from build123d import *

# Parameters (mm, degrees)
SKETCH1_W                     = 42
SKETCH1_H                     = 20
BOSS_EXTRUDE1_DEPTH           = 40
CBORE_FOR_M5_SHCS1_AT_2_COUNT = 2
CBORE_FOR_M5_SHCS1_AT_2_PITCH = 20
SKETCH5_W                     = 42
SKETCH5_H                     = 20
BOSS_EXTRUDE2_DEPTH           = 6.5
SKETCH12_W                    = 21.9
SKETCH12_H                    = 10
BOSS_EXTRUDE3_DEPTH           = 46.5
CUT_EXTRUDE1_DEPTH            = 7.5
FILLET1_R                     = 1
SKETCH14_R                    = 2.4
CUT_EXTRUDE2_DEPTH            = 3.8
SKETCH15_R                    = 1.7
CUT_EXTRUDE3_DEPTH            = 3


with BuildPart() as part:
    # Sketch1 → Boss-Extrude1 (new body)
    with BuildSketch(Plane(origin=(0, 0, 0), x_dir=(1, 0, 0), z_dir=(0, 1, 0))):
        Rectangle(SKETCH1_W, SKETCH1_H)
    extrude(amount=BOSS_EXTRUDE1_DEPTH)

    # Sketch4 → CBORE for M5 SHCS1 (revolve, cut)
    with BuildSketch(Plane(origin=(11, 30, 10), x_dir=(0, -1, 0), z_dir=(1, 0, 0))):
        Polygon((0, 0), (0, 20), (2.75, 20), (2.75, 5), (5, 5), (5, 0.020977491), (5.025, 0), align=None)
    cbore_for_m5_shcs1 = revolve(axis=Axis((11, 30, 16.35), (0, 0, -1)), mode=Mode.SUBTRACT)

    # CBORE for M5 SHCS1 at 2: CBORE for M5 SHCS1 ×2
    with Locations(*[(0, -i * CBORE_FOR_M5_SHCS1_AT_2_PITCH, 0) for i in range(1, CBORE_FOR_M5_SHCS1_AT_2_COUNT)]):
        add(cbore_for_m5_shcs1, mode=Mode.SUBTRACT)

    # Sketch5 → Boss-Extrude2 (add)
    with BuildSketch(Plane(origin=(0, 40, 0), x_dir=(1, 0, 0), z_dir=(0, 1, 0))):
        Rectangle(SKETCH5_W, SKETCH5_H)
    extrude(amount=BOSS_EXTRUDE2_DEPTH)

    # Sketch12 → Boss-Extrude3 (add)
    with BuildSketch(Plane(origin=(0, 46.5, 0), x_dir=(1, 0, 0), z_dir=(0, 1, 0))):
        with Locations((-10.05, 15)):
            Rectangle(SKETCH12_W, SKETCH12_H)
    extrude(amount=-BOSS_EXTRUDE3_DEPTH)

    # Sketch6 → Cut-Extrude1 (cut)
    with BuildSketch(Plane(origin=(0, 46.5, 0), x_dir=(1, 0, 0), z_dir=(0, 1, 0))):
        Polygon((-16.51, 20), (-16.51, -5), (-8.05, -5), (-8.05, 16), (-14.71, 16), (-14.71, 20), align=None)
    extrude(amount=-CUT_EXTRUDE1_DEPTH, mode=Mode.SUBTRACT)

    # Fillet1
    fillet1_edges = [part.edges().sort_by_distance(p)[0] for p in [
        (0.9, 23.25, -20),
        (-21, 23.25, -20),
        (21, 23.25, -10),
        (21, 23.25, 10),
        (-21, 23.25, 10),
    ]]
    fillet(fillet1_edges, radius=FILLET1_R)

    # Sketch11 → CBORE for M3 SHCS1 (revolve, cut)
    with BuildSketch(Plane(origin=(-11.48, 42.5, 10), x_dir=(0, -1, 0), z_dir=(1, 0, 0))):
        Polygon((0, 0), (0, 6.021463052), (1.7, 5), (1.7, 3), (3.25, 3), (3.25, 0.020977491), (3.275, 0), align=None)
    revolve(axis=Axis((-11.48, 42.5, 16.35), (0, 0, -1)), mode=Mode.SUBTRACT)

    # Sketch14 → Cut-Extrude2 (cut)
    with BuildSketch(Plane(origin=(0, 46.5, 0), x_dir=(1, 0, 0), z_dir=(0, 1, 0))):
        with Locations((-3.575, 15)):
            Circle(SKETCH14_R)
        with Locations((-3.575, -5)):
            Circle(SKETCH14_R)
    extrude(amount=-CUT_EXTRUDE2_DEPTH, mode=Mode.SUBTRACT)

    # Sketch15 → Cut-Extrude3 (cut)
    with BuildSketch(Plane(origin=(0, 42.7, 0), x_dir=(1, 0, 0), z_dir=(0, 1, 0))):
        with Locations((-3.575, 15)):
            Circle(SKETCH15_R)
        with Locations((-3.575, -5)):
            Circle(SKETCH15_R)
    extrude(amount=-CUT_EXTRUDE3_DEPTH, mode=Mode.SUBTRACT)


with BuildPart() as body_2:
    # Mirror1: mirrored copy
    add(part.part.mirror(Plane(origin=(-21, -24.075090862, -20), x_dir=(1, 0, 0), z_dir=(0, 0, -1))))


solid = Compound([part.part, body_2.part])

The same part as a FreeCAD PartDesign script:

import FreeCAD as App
import Part
import Sketcher
Q = App.Units.Quantity


def edges_at(feature, points):
    """Names of the edges that pass closest to the given points."""
    edges = feature.Shape.Edges
    near = lambda p: min(range(len(edges)), key=lambda i: edges[i].distToShape(Part.Vertex(*p))[0])
    return sorted({f"Edge{near(p) + 1}" for p in points})

doc = App.newDocument("Part")
params = doc.addObject("Spreadsheet::Sheet", "Params")
for row, (alias, value) in enumerate([
    ("sketch1_width", "42 mm"),
    ("sketch1_height", "20 mm"),
    ("pad1_length", "40 mm"),
    ("sketch2_height", "20 mm"),
    ("sketch2_height2", "15 mm"),
    ("sketch2_width", "2.25 mm"),
    ("groove_angle", "360 deg"),
    ("linearpattern_pitch", "20 mm"),
    ("sketch3_width", "42 mm"),
    ("sketch3_height", "20 mm"),
    ("pad2_length", "6.5 mm"),
    ("sketch4_height", "10 mm"),
    ("sketch4_width", "21.9 mm"),
    ("pad3_length", "46.5 mm"),
    ("sketch5_height", "25 mm"),
    ("sketch5_height2", "21 mm"),
    ("sketch5_width", "1.8 mm"),
    ("sketch5_width2", "8.46 mm"),
    ("pocket1_length", "7.5 mm"),
    ("fillet_radius", "1 mm"),
    ("sketch6_height", "2 mm"),
    ("sketch6_width", "1.55 mm"),
    ("groove2_angle", "360 deg"),
    ("sketch7_diameter", "4.8 mm"),
    ("pocket2_length", "3.8 mm"),
    ("sketch8_diameter", "3.4 mm"),
    ("pocket3_length", "3 mm"),
], start=1):
    params.set(f"A{row}", alias)
    params.set(f"B{row}", "=" + value)
    params.setAlias(f"B{row}", alias)

body = doc.addObject("PartDesign::Body", "Body")

# Sketch on XZ plane
sketch1 = body.newObject("Sketcher::SketchObject", "Sketch")
sketch1.AttachmentSupport = (doc.getObject("XZ_Plane"), [""])
sketch1.MapMode = "FlatFace"
sketch1.addGeometry([
    Part.LineSegment(App.Vector(-21, -10, 0), App.Vector(-21, 10, 0)),
    Part.LineSegment(App.Vector(-21, 10, 0), App.Vector(21, 10, 0)),
    Part.LineSegment(App.Vector(21, 10, 0), App.Vector(21, -10, 0)),
    Part.LineSegment(App.Vector(21, -10, 0), App.Vector(-21, -10, 0)),
], False)
sketch1.addConstraint([
    Sketcher.Constraint("Coincident", 0, 2, 1, 1),
    Sketcher.Constraint("Coincident", 1, 2, 2, 1),
    Sketcher.Constraint("Coincident", 2, 2, 3, 1),
    Sketcher.Constraint("Coincident", 3, 2, 0, 1),
    Sketcher.Constraint("Vertical", 0),
    Sketcher.Constraint("Horizontal", 1),
    Sketcher.Constraint("Vertical", 2),
    Sketcher.Constraint("Horizontal", 3),
    Sketcher.Constraint("Symmetric", 0, 2, 2, 2, -1, 1),
    Sketcher.Constraint("DistanceX", 1, 1, 1, 2, 42.0),
    Sketcher.Constraint("DistanceY", 0, 1, 0, 2, 20.0),
])
sketch1.setExpression("Constraints[9]", "Params.sketch1_width")
sketch1.setExpression("Constraints[10]", "Params.sketch1_height")
pad1 = body.newObject("PartDesign::Pad", "Pad")
pad1.Profile = sketch1
pad1.setExpression("Length", "Params.pad1_length")
pad1.Reversed = True

# Sketch on YZ plane
sketch2 = body.newObject("Sketcher::SketchObject", "Sketch001")
sketch2.AttachmentSupport = (doc.getObject("YZ_Plane"), [""])
sketch2.MapMode = "FlatFace"
sketch2.AttachmentOffset = App.Placement(App.Vector(0, 0, 11), App.Rotation())
sketch2.addGeometry([
    Part.LineSegment(App.Vector(30, -10, 0), App.Vector(30, 10, 0)),  # 0
    Part.LineSegment(App.Vector(30, 10, 0), App.Vector(24.975, 10, 0)),  # 1
    Part.LineSegment(App.Vector(24.975, 10, 0), App.Vector(25, 9.979, 0)),  # 2
    Part.LineSegment(App.Vector(25, 9.979, 0), App.Vector(25, 5, 0)),  # 3
    Part.LineSegment(App.Vector(25, 5, 0), App.Vector(27.25, 5, 0)),  # 4
    Part.LineSegment(App.Vector(27.25, 5, 0), App.Vector(27.25, -10, 0)),  # 5
    Part.LineSegment(App.Vector(27.25, -10, 0), App.Vector(30, -10, 0)),  # 6
], False)
sketch2.addGeometry(Part.LineSegment(App.Vector(30, 10, 0), App.Vector(30, -10, 0)), True)  # axis
sketch2.addConstraint([
    Sketcher.Constraint("Coincident", 0, 2, 1, 1),
    Sketcher.Constraint("Coincident", 1, 2, 2, 1),
    Sketcher.Constraint("Coincident", 2, 2, 3, 1),
    Sketcher.Constraint("Coincident", 3, 2, 4, 1),
    Sketcher.Constraint("Coincident", 4, 2, 5, 1),
    Sketcher.Constraint("Coincident", 5, 2, 6, 1),
    Sketcher.Constraint("Coincident", 6, 2, 0, 1),
    Sketcher.Constraint("Vertical", 0),
    Sketcher.Constraint("Horizontal", 1),
    Sketcher.Constraint("Vertical", 3),
    Sketcher.Constraint("Horizontal", 4),
    Sketcher.Constraint("Vertical", 5),
    Sketcher.Constraint("Horizontal", 6),
    Sketcher.Constraint("Vertical", 7),
    Sketcher.Constraint("Coincident", 7, 1, 0, 2),
    Sketcher.Constraint("Horizontal", 5, 2, 7, 2),
    Sketcher.Constraint("DistanceY", 0, 1, 0, 2, 20.0),
    Sketcher.Constraint("DistanceY", 5, 2, 5, 1, 15.0),
    Sketcher.Constraint("Angle", 2, Q("-40 deg")),
    Sketcher.Constraint("DistanceX", -1, 1, 0, 2, 30.0),
    Sketcher.Constraint("DistanceY", -1, 1, 0, 2, 10.0),
    Sketcher.Constraint("DistanceX", -1, 1, 2, 2, 25.0),
    Sketcher.Constraint("DistanceX", 4, 1, 4, 2, 2.25),
    Sketcher.Constraint("DistanceX", 1, 2, 1, 1, 5.025),
])
sketch2.setExpression("Constraints[16]", "Params.sketch2_height")
sketch2.setExpression("Constraints[17]", "Params.sketch2_height2")
sketch2.setExpression("Constraints[22]", "Params.sketch2_width")
groove = body.newObject("PartDesign::Groove", "Groove")
groove.Profile = sketch2
groove.ReferenceAxis = (sketch2, ["Axis0"])
groove.setExpression("Angle", "Params.groove_angle")
doc.recompute()

linearpattern = body.newObject("PartDesign::LinearPattern", "LinearPattern")
linearpattern.Originals = [groove]
linearpattern.Direction = (doc.getObject("Y_Axis"), [""])
linearpattern.Mode = "offset"
linearpattern.setExpression("Offset", "Params.linearpattern_pitch")
linearpattern.Occurrences = 2
linearpattern.Reversed = True
body.Tip = linearpattern

# Sketch on XZ plane
sketch3 = body.newObject("Sketcher::SketchObject", "Sketch002")
sketch3.AttachmentSupport = (doc.getObject("XZ_Plane"), [""])
sketch3.MapMode = "FlatFace"
sketch3.AttachmentOffset = App.Placement(App.Vector(0, 0, -40), App.Rotation())
sketch3.addGeometry([
    Part.LineSegment(App.Vector(-21, -10, 0), App.Vector(-21, 10, 0)),
    Part.LineSegment(App.Vector(-21, 10, 0), App.Vector(21, 10, 0)),
    Part.LineSegment(App.Vector(21, 10, 0), App.Vector(21, -10, 0)),
    Part.LineSegment(App.Vector(21, -10, 0), App.Vector(-21, -10, 0)),
], False)
sketch3.addConstraint([
    Sketcher.Constraint("Coincident", 0, 2, 1, 1),
    Sketcher.Constraint("Coincident", 1, 2, 2, 1),
    Sketcher.Constraint("Coincident", 2, 2, 3, 1),
    Sketcher.Constraint("Coincident", 3, 2, 0, 1),
    Sketcher.Constraint("Vertical", 0),
    Sketcher.Constraint("Horizontal", 1),
    Sketcher.Constraint("Vertical", 2),
    Sketcher.Constraint("Horizontal", 3),
    Sketcher.Constraint("Symmetric", 0, 2, 2, 2, -1, 1),
    Sketcher.Constraint("DistanceX", 1, 1, 1, 2, 42.0),
    Sketcher.Constraint("DistanceY", 0, 1, 0, 2, 20.0),
])
sketch3.setExpression("Constraints[9]", "Params.sketch3_width")
sketch3.setExpression("Constraints[10]", "Params.sketch3_height")
pad2 = body.newObject("PartDesign::Pad", "Pad001")
pad2.Profile = sketch3
pad2.setExpression("Length", "Params.pad2_length")
pad2.Reversed = True

# Sketch on XZ plane
sketch4 = body.newObject("Sketcher::SketchObject", "Sketch003")
sketch4.AttachmentSupport = (doc.getObject("XZ_Plane"), [""])
sketch4.MapMode = "FlatFace"
sketch4.AttachmentOffset = App.Placement(App.Vector(0, 0, -46.5), App.Rotation())
sketch4.addGeometry([
    Part.LineSegment(App.Vector(-21, -20, 0), App.Vector(-21, -10, 0)),
    Part.LineSegment(App.Vector(-21, -10, 0), App.Vector(1, -10, 0)),
    Part.LineSegment(App.Vector(1, -10, 0), App.Vector(1, -20, 0)),
    Part.LineSegment(App.Vector(1, -20, 0), App.Vector(-21, -20, 0)),
], False)
sketch4.addConstraint([
    Sketcher.Constraint("Coincident", 0, 2, 1, 1),
    Sketcher.Constraint("Coincident", 1, 2, 2, 1),
    Sketcher.Constraint("Coincident", 2, 2, 3, 1),
    Sketcher.Constraint("Coincident", 3, 2, 0, 1),
    Sketcher.Constraint("Vertical", 0),
    Sketcher.Constraint("Horizontal", 1),
    Sketcher.Constraint("Vertical", 2),
    Sketcher.Constraint("Horizontal", 3),
    Sketcher.Constraint("DistanceY", 0, 1, 0, 2, 10.0),
    Sketcher.Constraint("DistanceX", 1, 1, 1, 2, 21.9),
    Sketcher.Constraint("DistanceX", 0, 2, -1, 1, 21.0),
    Sketcher.Constraint("DistanceY", 0, 2, -1, 1, 10.0),
])
sketch4.setExpression("Constraints[8]", "Params.sketch4_height")
sketch4.setExpression("Constraints[9]", "Params.sketch4_width")
pad3 = body.newObject("PartDesign::Pad", "Pad002")
pad3.Profile = sketch4
pad3.setExpression("Length", "Params.pad3_length")

# Sketch on XZ plane
sketch5 = body.newObject("Sketcher::SketchObject", "Sketch004")
sketch5.AttachmentSupport = (doc.getObject("XZ_Plane"), [""])
sketch5.MapMode = "FlatFace"
sketch5.AttachmentOffset = App.Placement(App.Vector(0, 0, -46.5), App.Rotation())
sketch5.addGeometry([
    Part.LineSegment(App.Vector(-16.5, -20, 0), App.Vector(-16.5, 5, 0)),  # 0
    Part.LineSegment(App.Vector(-16.5, 5, 0), App.Vector(-8.1, 5, 0)),  # 1
    Part.LineSegment(App.Vector(-8.1, 5, 0), App.Vector(-8.1, -16, 0)),  # 2
    Part.LineSegment(App.Vector(-8.1, -16, 0), App.Vector(-14.7, -16, 0)),  # 3
    Part.LineSegment(App.Vector(-14.7, -16, 0), App.Vector(-14.7, -20, 0)),  # 4
    Part.LineSegment(App.Vector(-14.7, -20, 0), App.Vector(-16.5, -20, 0)),  # 5
], False)
sketch5.addConstraint([
    Sketcher.Constraint("Coincident", 0, 2, 1, 1),
    Sketcher.Constraint("Coincident", 1, 2, 2, 1),
    Sketcher.Constraint("Coincident", 2, 2, 3, 1),
    Sketcher.Constraint("Coincident", 3, 2, 4, 1),
    Sketcher.Constraint("Coincident", 4, 2, 5, 1),
    Sketcher.Constraint("Coincident", 5, 2, 0, 1),
    Sketcher.Constraint("Vertical", 0),
    Sketcher.Constraint("Horizontal", 1),
    Sketcher.Constraint("Vertical", 2),
    Sketcher.Constraint("Horizontal", 3),
    Sketcher.Constraint("Vertical", 4),
    Sketcher.Constraint("Horizontal", 5),
    Sketcher.Constraint("DistanceY", 0, 1, 0, 2, 25.0),
    Sketcher.Constraint("DistanceY", 2, 2, 2, 1, 21.0),
    Sketcher.Constraint("DistanceX", 5, 2, 5, 1, 1.8),
    Sketcher.Constraint("DistanceY", -1, 1, 0, 2, 5.0),
    Sketcher.Constraint("DistanceX", 1, 1, 1, 2, 8.46),
    Sketcher.Constraint("DistanceX", 0, 2, -1, 1, 16.51),
])
sketch5.setExpression("Constraints[12]", "Params.sketch5_height")
sketch5.setExpression("Constraints[13]", "Params.sketch5_height2")
sketch5.setExpression("Constraints[14]", "Params.sketch5_width")
sketch5.setExpression("Constraints[16]", "Params.sketch5_width2")
pocket1 = body.newObject("PartDesign::Pocket", "Pocket")
pocket1.Profile = sketch5
pocket1.setExpression("Length", "Params.pocket1_length")
pocket1.Reversed = True
doc.recompute()

fillet = body.newObject("PartDesign::Fillet", "Fillet")
fillet.Base = (pocket1, edges_at(pocket1, [
    (0.9, 23.25, -20),
    (-21, 23.25, -20),
    (21, 23.25, -10),
    (21, 23.25, 10),
    (-21, 23.25, 10),
]))
fillet.setExpression("Radius", "Params.fillet_radius")

# Sketch on YZ plane
sketch6 = body.newObject("Sketcher::SketchObject", "Sketch005")
sketch6.AttachmentSupport = (doc.getObject("YZ_Plane"), [""])
sketch6.MapMode = "FlatFace"
sketch6.AttachmentOffset = App.Placement(App.Vector(0, 0, -11.48), App.Rotation())
sketch6.addGeometry([
    Part.LineSegment(App.Vector(42.5, 3.979, 0), App.Vector(42.5, 10, 0)),  # 0
    Part.LineSegment(App.Vector(42.5, 10, 0), App.Vector(39.225, 10, 0)),  # 1
    Part.LineSegment(App.Vector(39.225, 10, 0), App.Vector(39.25, 9.979, 0)),  # 2
    Part.LineSegment(App.Vector(39.25, 9.979, 0), App.Vector(39.25, 7, 0)),  # 3
    Part.LineSegment(App.Vector(39.25, 7, 0), App.Vector(40.8, 7, 0)),  # 4
    Part.LineSegment(App.Vector(40.8, 7, 0), App.Vector(40.8, 5, 0)),  # 5
    Part.LineSegment(App.Vector(40.8, 5, 0), App.Vector(42.5, 3.979, 0)),  # 6
], False)
sketch6.addGeometry(Part.LineSegment(App.Vector(42.5, 10, 0), App.Vector(42.5, 3.979, 0)), True)  # axis
sketch6.addConstraint([
    Sketcher.Constraint("Coincident", 0, 2, 1, 1),
    Sketcher.Constraint("Coincident", 1, 2, 2, 1),
    Sketcher.Constraint("Coincident", 2, 2, 3, 1),
    Sketcher.Constraint("Coincident", 3, 2, 4, 1),
    Sketcher.Constraint("Coincident", 4, 2, 5, 1),
    Sketcher.Constraint("Coincident", 5, 2, 6, 1),
    Sketcher.Constraint("Coincident", 6, 2, 0, 1),
    Sketcher.Constraint("Vertical", 0),
    Sketcher.Constraint("Horizontal", 1),
    Sketcher.Constraint("Vertical", 3),
    Sketcher.Constraint("Horizontal", 4),
    Sketcher.Constraint("Vertical", 5),
    Sketcher.Constraint("Vertical", 7),
    Sketcher.Constraint("Coincident", 7, 1, 0, 2),
    Sketcher.Constraint("Equal", 0, 7),
    Sketcher.Constraint("DistanceY", 5, 2, 5, 1, 2.0),
    Sketcher.Constraint("Angle", 2, Q("-40 deg")),
    Sketcher.Constraint("Angle", 6, Q("-31 deg")),
    Sketcher.Constraint("DistanceY", -1, 1, 0, 2, 10.0),
    Sketcher.Constraint("DistanceY", -1, 1, 3, 2, 7.0),
    Sketcher.Constraint("DistanceX", 4, 1, 4, 2, 1.55),
    Sketcher.Constraint("DistanceX", -1, 1, 0, 2, 42.5),
    Sketcher.Constraint("DistanceX", -1, 1, 4, 2, 40.8),
    Sketcher.Constraint("DistanceX", 1, 2, 1, 1, 3.275),
])
sketch6.setExpression("Constraints[15]", "Params.sketch6_height")
sketch6.setExpression("Constraints[20]", "Params.sketch6_width")
groove2 = body.newObject("PartDesign::Groove", "Groove001")
groove2.Profile = sketch6
groove2.ReferenceAxis = (sketch6, ["Axis0"])
groove2.setExpression("Angle", "Params.groove2_angle")

# Sketch on XZ plane
sketch7 = body.newObject("Sketcher::SketchObject", "Sketch006")
sketch7.AttachmentSupport = (doc.getObject("XZ_Plane"), [""])
sketch7.MapMode = "FlatFace"
sketch7.AttachmentOffset = App.Placement(App.Vector(0, 0, -46.5), App.Rotation())
sketch7.addGeometry([
    Part.Circle(App.Vector(-3.6, -15, 0), App.Vector(0, 0, 1), 2.4),
    Part.Circle(App.Vector(-3.6, 5, 0), App.Vector(0, 0, 1), 2.4),
], False)
sketch7.addConstraint([
    Sketcher.Constraint("Equal", 0, 1),
    Sketcher.Constraint("Vertical", 0, 3, 1, 3),
    Sketcher.Constraint("Diameter", 0, 4.8),
    Sketcher.Constraint("DistanceY", 0, 3, -1, 1, 15.0),
    Sketcher.Constraint("DistanceY", -1, 1, 1, 3, 5.0),
    Sketcher.Constraint("DistanceX", 0, 3, -1, 1, 3.575),
])
sketch7.setExpression("Constraints[2]", "Params.sketch7_diameter")
pocket2 = body.newObject("PartDesign::Pocket", "Pocket001")
pocket2.Profile = sketch7
pocket2.setExpression("Length", "Params.pocket2_length")
pocket2.Reversed = True

# Sketch on XZ plane
sketch8 = body.newObject("Sketcher::SketchObject", "Sketch007")
sketch8.AttachmentSupport = (doc.getObject("XZ_Plane"), [""])
sketch8.MapMode = "FlatFace"
sketch8.AttachmentOffset = App.Placement(App.Vector(0, 0, -42.7), App.Rotation())
sketch8.addGeometry([
    Part.Circle(App.Vector(-3.6, -15, 0), App.Vector(0, 0, 1), 1.7),
    Part.Circle(App.Vector(-3.6, 5, 0), App.Vector(0, 0, 1), 1.7),
], False)
sketch8.addConstraint([
    Sketcher.Constraint("Equal", 0, 1),
    Sketcher.Constraint("Vertical", 0, 3, 1, 3),
    Sketcher.Constraint("Diameter", 0, 3.4),
    Sketcher.Constraint("DistanceY", 0, 3, -1, 1, 15.0),
    Sketcher.Constraint("DistanceY", -1, 1, 1, 3, 5.0),
    Sketcher.Constraint("DistanceX", 0, 3, -1, 1, 3.575),
])
sketch8.setExpression("Constraints[2]", "Params.sketch8_diameter")
pocket3 = body.newObject("PartDesign::Pocket", "Pocket002")
pocket3.Profile = sketch8
pocket3.setExpression("Length", "Params.pocket3_length")
pocket3.Reversed = True
body2 = doc.addObject("PartDesign::Body", "Body001")
doc.recompute()

mirroring = doc.addObject("Part::Mirroring", "Mirroring")
mirroring.Source = body
mirroring.Base = App.Vector(-21, -24.075091, -20)
mirroring.Normal = App.Vector(0, 0, -1)
body2.BaseFeature = mirroring
doc.recompute()
mirroring.Visibility = False

doc.recompute()
